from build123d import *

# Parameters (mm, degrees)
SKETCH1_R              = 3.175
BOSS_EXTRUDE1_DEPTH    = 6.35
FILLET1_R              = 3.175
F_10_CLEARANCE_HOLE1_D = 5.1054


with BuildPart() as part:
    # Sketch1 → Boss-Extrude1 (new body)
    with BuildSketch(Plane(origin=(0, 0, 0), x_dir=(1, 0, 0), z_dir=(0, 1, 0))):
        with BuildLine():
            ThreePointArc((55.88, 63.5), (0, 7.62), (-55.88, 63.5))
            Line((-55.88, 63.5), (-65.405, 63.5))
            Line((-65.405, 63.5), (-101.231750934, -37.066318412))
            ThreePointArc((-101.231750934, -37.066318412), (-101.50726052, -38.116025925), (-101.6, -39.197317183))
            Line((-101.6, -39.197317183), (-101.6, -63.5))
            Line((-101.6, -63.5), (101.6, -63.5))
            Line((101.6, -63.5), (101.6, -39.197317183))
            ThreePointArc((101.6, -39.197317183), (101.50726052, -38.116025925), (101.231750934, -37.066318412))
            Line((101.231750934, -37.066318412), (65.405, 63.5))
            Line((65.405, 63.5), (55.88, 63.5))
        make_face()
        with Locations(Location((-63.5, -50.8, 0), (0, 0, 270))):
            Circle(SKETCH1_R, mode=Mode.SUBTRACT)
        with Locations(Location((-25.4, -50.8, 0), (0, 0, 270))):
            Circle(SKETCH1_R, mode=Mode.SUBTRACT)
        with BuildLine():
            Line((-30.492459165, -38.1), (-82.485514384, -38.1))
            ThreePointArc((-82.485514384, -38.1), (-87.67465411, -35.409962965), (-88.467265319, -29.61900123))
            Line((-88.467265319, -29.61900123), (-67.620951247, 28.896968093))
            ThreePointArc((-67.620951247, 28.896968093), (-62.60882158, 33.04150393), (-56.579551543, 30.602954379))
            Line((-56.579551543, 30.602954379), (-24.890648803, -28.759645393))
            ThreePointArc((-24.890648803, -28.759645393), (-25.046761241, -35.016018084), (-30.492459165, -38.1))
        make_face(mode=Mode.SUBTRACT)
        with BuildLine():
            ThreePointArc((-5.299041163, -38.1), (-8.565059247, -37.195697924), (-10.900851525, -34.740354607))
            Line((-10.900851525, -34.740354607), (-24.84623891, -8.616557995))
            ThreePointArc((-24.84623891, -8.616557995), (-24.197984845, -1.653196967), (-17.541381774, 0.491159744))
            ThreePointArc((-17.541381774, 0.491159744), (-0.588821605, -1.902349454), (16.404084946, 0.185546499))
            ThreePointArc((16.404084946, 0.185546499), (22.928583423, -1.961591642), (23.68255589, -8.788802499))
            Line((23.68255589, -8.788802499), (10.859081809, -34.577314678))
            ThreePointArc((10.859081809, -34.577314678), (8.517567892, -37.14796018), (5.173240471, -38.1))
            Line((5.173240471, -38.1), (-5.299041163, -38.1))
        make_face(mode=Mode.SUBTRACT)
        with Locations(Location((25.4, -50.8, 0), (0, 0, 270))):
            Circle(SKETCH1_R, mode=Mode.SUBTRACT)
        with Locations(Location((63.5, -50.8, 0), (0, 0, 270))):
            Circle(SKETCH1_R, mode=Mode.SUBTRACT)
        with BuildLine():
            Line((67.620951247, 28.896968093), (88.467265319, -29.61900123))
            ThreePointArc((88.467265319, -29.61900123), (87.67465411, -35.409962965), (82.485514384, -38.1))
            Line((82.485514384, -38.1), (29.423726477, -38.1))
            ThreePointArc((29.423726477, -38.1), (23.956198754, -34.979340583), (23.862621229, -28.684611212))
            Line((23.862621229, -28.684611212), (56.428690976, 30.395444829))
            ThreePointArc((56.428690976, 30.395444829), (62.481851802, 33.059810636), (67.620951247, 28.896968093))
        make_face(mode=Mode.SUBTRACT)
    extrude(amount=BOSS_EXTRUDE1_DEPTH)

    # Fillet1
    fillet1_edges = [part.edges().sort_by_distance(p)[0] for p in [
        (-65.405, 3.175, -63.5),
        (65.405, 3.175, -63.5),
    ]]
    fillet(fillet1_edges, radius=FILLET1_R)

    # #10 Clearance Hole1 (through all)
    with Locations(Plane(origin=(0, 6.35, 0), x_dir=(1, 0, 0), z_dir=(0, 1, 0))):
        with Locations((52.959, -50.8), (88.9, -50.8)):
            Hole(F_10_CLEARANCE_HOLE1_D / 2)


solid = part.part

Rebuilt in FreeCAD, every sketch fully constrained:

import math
import FreeCAD as App
import Part
import Sketcher
from FreeCAD import Vector
Q = App.Units.Quantity


def edges_at(feature, points):
    """Names of the edges that pass closest to the given points."""
    edges = feature.Shape.Edges
    near = lambda p: min(range(len(edges)), key=lambda i: edges[i].distToShape(Part.Vertex(*p))[0])
    return sorted({f"Edge{near(p) + 1}" for p in points})

doc = App.newDocument("Part")
body = doc.addObject("PartDesign::Body", "Body")

# Sketch on XZ plane
sketch1 = body.newObject("Sketcher::SketchObject", "Sketch")
sketch1.AttachmentSupport = (doc.getObject("XZ_Plane"), [""])
sketch1.MapMode = "FlatFace"
sketch1.addGeometry([
    Part.ArcOfCircle(Part.Circle(Vector(0, -63.5, 0), Vector(0, 0, 1), 55.88), math.radians(0), math.radians(180)),  # 0
    Part.LineSegment(Vector(-55.88, -63.5, 0), Vector(-65.405, -63.5, 0)),  # 1
    Part.LineSegment(Vector(-65.405, -63.5, 0), Vector(-101.231751, 37.066318, 0)),  # 2
    Part.ArcOfCircle(Part.Circle(Vector(-95.25, 39.197317, 0), Vector(0, 0, 1), 6.35), math.radians(180), math.radians(199.608441)),  # 3
    Part.LineSegment(Vector(-101.6, 39.197317, 0), Vector(-101.6, 63.5, 0)),  # 4
    Part.LineSegment(Vector(-101.6, 63.5, 0), Vector(101.6, 63.5, 0)),  # 5
    Part.LineSegment(Vector(101.6, 63.5, 0), Vector(101.6, 39.197317, 0)),  # 6
    Part.ArcOfCircle(Part.Circle(Vector(95.25, 39.197317, 0), Vector(0, 0, 1), 6.35), math.radians(-19.608441), math.radians(0)),  # 7
    Part.LineSegment(Vector(101.231751, 37.066318, 0), Vector(65.405, -63.5, 0)),  # 8
    Part.LineSegment(Vector(65.405, -63.5, 0), Vector(55.88, -63.5, 0)),  # 9
    Part.Circle(Vector(-63.5, 50.8, 0), Vector(0, 0, 1), 3.175),  # 10
    Part.Circle(Vector(-25.4, 50.8, 0), Vector(0, 0, 1), 3.175),  # 11
    Part.LineSegment(Vector(5.17324, 38.1, 0), Vector(-5.299041, 38.1, 0)),  # 12
    Part.ArcOfCircle(Part.Circle(Vector(-5.299041, 31.75, 0), Vector(0, 0, 1), 6.35), math.radians(90), math.radians(151.905839)),  # 13
    Part.LineSegment(Vector(-10.900852, 34.740355, 0), Vector(-24.846239, 8.616558, 0)),  # 14
    Part.ArcOfCircle(Part.Circle(Vector(-19.244429, 5.626203, 0), Vector(0, 0, 1), 6.35), math.radians(151.905839), math.radians(285.556967)),  # 15
    Part.ArcOfCircle(Part.Circle(Vector(0, -63.5, 0), Vector(0, 0, 1), 65.405), math.radians(75.474681), math.radians(105.556967)),  # 16
    Part.ArcOfCircle(Part.Circle(Vector(17.996715, 5.961488, 0), Vector(0, 0, 1), 6.35), math.radians(-104.525319), math.radians(26.439105)),  # 17
    Part.LineSegment(Vector(23.682556, 8.788802, 0), Vector(10.859082, 34.577315, 0)),  # 18
    Part.ArcOfCircle(Part.Circle(Vector(5.17324, 31.75, 0), Vector(0, 0, 1), 6.35), math.radians(26.439105), math.radians(90)),  # 19
    Part.Circle(Vector(25.4, 50.8, 0), Vector(0, 0, 1), 3.175),  # 20
    Part.Circle(Vector(63.5, 50.8, 0), Vector(0, 0, 1), 3.175),  # 21
    Part.ArcOfCircle(Part.Circle(Vector(-30.492459, 31.75, 0), Vector(0, 0, 1), 6.35), math.radians(-28.094161), math.radians(90)),  # 22
    Part.LineSegment(Vector(-30.492459, 38.1, 0), Vector(-82.485514, 38.1, 0)),  # 23
    Part.ArcOfCircle(Part.Circle(Vector(-82.485514, 31.75, 0), Vector(0, 0, 1), 6.35), math.radians(90), math.radians(199.608441)),  # 24
    Part.LineSegment(Vector(-88.467265, 29.619001, 0), Vector(-67.620951, -28.896968, 0)),  # 25
    Part.ArcOfCircle(Part.Circle(Vector(-61.6392, -26.765969, 0), Vector(0, 0, 1), 6.35), math.radians(-160.391559), math.radians(-37.174864)),  # 26
    Part.LineSegment(Vector(-56.579552, -30.602954, 0), Vector(-24.890649, 28.759645, 0)),  # 27
    Part.ArcOfCircle(Part.Circle(Vector(61.6392, -26.765969, 0), Vector(0, 0, 1), 6.35), math.radians(-145.140155), math.radians(-19.608441)),  # 28
    Part.LineSegment(Vector(67.620951, -28.896968, 0), Vector(88.467265, 29.619001, 0)),  # 29
    Part.ArcOfCircle(Part.Circle(Vector(82.485514, 31.75, 0), Vector(0, 0, 1), 6.35), math.radians(-19.608441), math.radians(90)),  # 30
    Part.LineSegment(Vector(82.485514, 38.1, 0), Vector(29.423726, 38.1, 0)),  # 31
    Part.ArcOfCircle(Part.Circle(Vector(29.423726, 31.75, 0), Vector(0, 0, 1), 6.35), math.radians(90), math.radians(208.864404)),  # 32
    Part.LineSegment(Vector(23.862621, 28.684611, 0), Vector(56.428691, -30.395445, 0)),  # 33
], False)
sketch1.addConstraint([
    Sketcher.Constraint("Coincident", 0, 2, 1, 1),
    Sketcher.Constraint("Coincident", 1, 2, 2, 1),
    Sketcher.Constraint("Tangent", 2, 2, 3, 2),
    Sketcher.Constraint("Tangent", 3, 1, 4, 1),
    Sketcher.Constraint("Coincident", 4, 2, 5, 1),
    Sketcher.Constraint("Coincident", 5, 2, 6, 1),
    Sketcher.Constraint("Tangent", 6, 2, 7, 2),
    Sketcher.Constraint("Tangent", 7, 1, 8, 1),
    Sketcher.Constraint("Coincident", 8, 2, 9, 1),
    Sketcher.Constraint("Coincident", 9, 2, 0, 1),
    Sketcher.Constraint("Tangent", 12, 2, 13, 1),
    Sketcher.Constraint("Tangent", 13, 2, 14, 1),
    Sketcher.Constraint("Tangent", 14, 2, 15, 1),
    Sketcher.Constraint("Tangent", 15, 2, 16, 2),
    Sketcher.Constraint("Tangent", 16, 1, 17, 1),
    Sketcher.Constraint("Tangent", 17, 2, 18, 1),
    Sketcher.Constraint("Tangent", 18, 2, 19, 1),
    Sketcher.Constraint("Tangent", 19, 2, 12, 1),
    Sketcher.Constraint("Tangent", 22, 2, 23, 1),
    Sketcher.Constraint("Tangent", 23, 2, 24, 1),
    Sketcher.Constraint("Tangent", 24, 2, 25, 1),
    Sketcher.Constraint("Tangent", 25, 2, 26, 1),
    Sketcher.Constraint("Coincident", 26, 2, 27, 1),
    Sketcher.Constraint("Tangent", 27, 2, 22, 1),
    Sketcher.Constraint("Tangent", 28, 2, 29, 1),
    Sketcher.Constraint("Tangent", 29, 2, 30, 1),
    Sketcher.Constraint("Tangent", 30, 2, 31, 1),
    Sketcher.Constraint("Tangent", 31, 2, 32, 1),
    Sketcher.Constraint("Tangent", 32, 2, 33, 1),
    Sketcher.Constraint("Coincident", 33, 2, 28, 1),
    Sketcher.Constraint("Horizontal", 1),
    Sketcher.Constraint("Vertical", 4),
    Sketcher.Constraint("Horizontal", 5),
    Sketcher.Constraint("Vertical", 6),
    Sketcher.Constraint("Horizontal", 9),
    Sketcher.Constraint("Horizontal", 12),
    Sketcher.Constraint("Horizontal", 23),
    Sketcher.Constraint("Horizontal", 31),
    Sketcher.Constraint("Coincident", 16, 3, 0, 3),
    Sketcher.Constraint("Equal", 3, 7),
    Sketcher.Constraint("Equal", 10, 11),
    Sketcher.Constraint("Equal", 7, 13),
    Sketcher.Constraint("Equal", 13, 15),
    Sketcher.Constraint("Equal", 15, 17),
    Sketcher.Constraint("Equal", 17, 19),
    Sketcher.Constraint("Equal", 11, 20),
    Sketcher.Constraint("Equal", 20, 21),
    Sketcher.Constraint("Equal", 19, 22),
    Sketcher.Constraint("Equal", 22, 24),
    Sketcher.Constraint("Equal", 24, 26),
    Sketcher.Constraint("Equal", 26, 28),
    Sketcher.Constraint("Equal", 28, 30),
    Sketcher.Constraint("Equal", 30, 32),
    Sketcher.Constraint("Symmetric", 3, 3, 7, 3, -2),
    Sketcher.Constraint("Symmetric", 11, 3, 20, 3, -2),
    Sketcher.Constraint("Symmetric", 10, 3, 21, 3, -2),
    Sketcher.Constraint("Symmetric", 26, 3, 28, 3, -2),
    Sketcher.Constraint("Symmetric", 24, 3, 30, 3, -2),
    Sketcher.Constraint("Symmetric", 1, 2, 8, 2, -2),
    Sketcher.Constraint("PointOnObject", 0, 3, -2),
    Sketcher.Constraint("Parallel", 2, 25),
    Sketcher.Constraint("Parallel", 14, 27),
    Sketcher.Constraint("Horizontal", 10, 3, 11, 3),
    Sketcher.Constraint("Horizontal", 19, 3, 22, 3),
    Sketcher.Constraint("Horizontal", 16, 3, 0, 2),
    Sketcher.Constraint("Radius", 0, Q("2.2 in")),
    Sketcher.Constraint("Diameter", 10, Q("0.25 in")),
    Sketcher.Constraint("DistanceX", 5, 1, 5, 2, Q("8 in")),
    Sketcher.Constraint("Radius", 3, Q("0.25 in")),
    Sketcher.Constraint("DistanceY", -1, 1, 10, 3, Q("2 in")),
    Sketcher.Constraint("DistanceX", 11, 3, -1, 1, Q("1 in")),
    Sketcher.Constraint("Radius", 16, Q("2.575 in")),
    Sketcher.Constraint("DistanceY", 0, 3, -1, 1, Q("2.5 in")),
    Sketcher.Constraint("DistanceX", 10, 3, -1, 1, Q("2.5 in")),
    Sketcher.Constraint("DistanceY", -1, 1, 4, 2, Q("2.5 in")),
    Sketcher.Constraint("DistanceY", -1, 1, 12, 2, Q("1.5 in")),
    Sketcher.Constraint("DistanceX", 1, 2, 1, 1, Q("0.375 in")),
    Sketcher.Constraint("DistanceY", 15, 3, 17, 3, Q("0.0132002 in")),
    Sketcher.Constraint("DistanceX", 12, 2, 12, 1, Q("10.472282 mm")),
    Sketcher.Constraint("DistanceX", 26, 3, -1, 1, Q("61.6392 mm")),
    Sketcher.Constraint("DistanceY", -1, 1, 29, 2, Q("29.619001 mm")),
    Sketcher.Constraint("DistanceX", 22, 3, 19, 3, Q("35.6657 mm")),
    Sketcher.Constraint("DistanceX", 17, 3, 30, 3, Q("64.4888 mm")),
    Sketcher.Constraint("DistanceX", 25, 2, 26, 2, Q("11.0414 mm")),
    Sketcher.Constraint("DistanceY", 33, 2, 16, 1, Q("30.209898 mm")),
    Sketcher.Constraint("Distance", 18, Q("28.800848 mm")),
    Sketcher.Constraint("DistanceX", 31, 2, 31, 1, Q("53.061788 mm")),
])
pad1 = body.newObject("PartDesign::Pad", "Pad")
pad1.Profile = sketch1
pad1.Length = Q("0.25 in")
pad1.Reversed = True
doc.recompute()

fillet = body.newObject("PartDesign::Fillet", "Fillet")
fillet.Base = (pad1, edges_at(pad1, [(-65.405, 3.175, -63.5), (65.405, 3.175, -63.5)]))
fillet.Radius = Q("0.125 in")

# Sketch on XZ plane
sketch2 = body.newObject("Sketcher::SketchObject", "Sketch001")
sketch2.AttachmentSupport = (doc.getObject("XZ_Plane"), [""])
sketch2.MapMode = "FlatFace"
sketch2.AttachmentOffset = App.Placement(Vector(0, 0, -0.25 * 25.4), App.Rotation())
sketch2.addGeometry([
    Part.Circle(Vector(52.959, 50.8, 0), Vector(0, 0, 1), 2.5527),
    Part.Circle(Vector(88.9, 50.8, 0), Vector(0, 0, 1), 2.5527),
], False)
sketch2.addConstraint([
    Sketcher.Constraint("Equal", 0, 1),
    Sketcher.Constraint("Horizontal", 0, 3, 1, 3),
    Sketcher.Constraint("Diameter", 0, Q("0.201 in")),
    Sketcher.Constraint("DistanceY", -1, 1, 0, 3, Q("2 in")),
    Sketcher.Constraint("DistanceX", -1, 1, 1, 3, Q("3.5 in")),
    Sketcher.Constraint("DistanceX", -1, 1, 0, 3, Q("2.085 in")),
])
doc.recompute()
hole = body.newObject("PartDesign::Hole", "Hole")
hole.Profile = sketch2
hole.ThreadType = "None"
hole.Diameter = Q("0.201 in")
hole.DepthType = "ThroughAll"
hole.Reversed = True

doc.recompute()
